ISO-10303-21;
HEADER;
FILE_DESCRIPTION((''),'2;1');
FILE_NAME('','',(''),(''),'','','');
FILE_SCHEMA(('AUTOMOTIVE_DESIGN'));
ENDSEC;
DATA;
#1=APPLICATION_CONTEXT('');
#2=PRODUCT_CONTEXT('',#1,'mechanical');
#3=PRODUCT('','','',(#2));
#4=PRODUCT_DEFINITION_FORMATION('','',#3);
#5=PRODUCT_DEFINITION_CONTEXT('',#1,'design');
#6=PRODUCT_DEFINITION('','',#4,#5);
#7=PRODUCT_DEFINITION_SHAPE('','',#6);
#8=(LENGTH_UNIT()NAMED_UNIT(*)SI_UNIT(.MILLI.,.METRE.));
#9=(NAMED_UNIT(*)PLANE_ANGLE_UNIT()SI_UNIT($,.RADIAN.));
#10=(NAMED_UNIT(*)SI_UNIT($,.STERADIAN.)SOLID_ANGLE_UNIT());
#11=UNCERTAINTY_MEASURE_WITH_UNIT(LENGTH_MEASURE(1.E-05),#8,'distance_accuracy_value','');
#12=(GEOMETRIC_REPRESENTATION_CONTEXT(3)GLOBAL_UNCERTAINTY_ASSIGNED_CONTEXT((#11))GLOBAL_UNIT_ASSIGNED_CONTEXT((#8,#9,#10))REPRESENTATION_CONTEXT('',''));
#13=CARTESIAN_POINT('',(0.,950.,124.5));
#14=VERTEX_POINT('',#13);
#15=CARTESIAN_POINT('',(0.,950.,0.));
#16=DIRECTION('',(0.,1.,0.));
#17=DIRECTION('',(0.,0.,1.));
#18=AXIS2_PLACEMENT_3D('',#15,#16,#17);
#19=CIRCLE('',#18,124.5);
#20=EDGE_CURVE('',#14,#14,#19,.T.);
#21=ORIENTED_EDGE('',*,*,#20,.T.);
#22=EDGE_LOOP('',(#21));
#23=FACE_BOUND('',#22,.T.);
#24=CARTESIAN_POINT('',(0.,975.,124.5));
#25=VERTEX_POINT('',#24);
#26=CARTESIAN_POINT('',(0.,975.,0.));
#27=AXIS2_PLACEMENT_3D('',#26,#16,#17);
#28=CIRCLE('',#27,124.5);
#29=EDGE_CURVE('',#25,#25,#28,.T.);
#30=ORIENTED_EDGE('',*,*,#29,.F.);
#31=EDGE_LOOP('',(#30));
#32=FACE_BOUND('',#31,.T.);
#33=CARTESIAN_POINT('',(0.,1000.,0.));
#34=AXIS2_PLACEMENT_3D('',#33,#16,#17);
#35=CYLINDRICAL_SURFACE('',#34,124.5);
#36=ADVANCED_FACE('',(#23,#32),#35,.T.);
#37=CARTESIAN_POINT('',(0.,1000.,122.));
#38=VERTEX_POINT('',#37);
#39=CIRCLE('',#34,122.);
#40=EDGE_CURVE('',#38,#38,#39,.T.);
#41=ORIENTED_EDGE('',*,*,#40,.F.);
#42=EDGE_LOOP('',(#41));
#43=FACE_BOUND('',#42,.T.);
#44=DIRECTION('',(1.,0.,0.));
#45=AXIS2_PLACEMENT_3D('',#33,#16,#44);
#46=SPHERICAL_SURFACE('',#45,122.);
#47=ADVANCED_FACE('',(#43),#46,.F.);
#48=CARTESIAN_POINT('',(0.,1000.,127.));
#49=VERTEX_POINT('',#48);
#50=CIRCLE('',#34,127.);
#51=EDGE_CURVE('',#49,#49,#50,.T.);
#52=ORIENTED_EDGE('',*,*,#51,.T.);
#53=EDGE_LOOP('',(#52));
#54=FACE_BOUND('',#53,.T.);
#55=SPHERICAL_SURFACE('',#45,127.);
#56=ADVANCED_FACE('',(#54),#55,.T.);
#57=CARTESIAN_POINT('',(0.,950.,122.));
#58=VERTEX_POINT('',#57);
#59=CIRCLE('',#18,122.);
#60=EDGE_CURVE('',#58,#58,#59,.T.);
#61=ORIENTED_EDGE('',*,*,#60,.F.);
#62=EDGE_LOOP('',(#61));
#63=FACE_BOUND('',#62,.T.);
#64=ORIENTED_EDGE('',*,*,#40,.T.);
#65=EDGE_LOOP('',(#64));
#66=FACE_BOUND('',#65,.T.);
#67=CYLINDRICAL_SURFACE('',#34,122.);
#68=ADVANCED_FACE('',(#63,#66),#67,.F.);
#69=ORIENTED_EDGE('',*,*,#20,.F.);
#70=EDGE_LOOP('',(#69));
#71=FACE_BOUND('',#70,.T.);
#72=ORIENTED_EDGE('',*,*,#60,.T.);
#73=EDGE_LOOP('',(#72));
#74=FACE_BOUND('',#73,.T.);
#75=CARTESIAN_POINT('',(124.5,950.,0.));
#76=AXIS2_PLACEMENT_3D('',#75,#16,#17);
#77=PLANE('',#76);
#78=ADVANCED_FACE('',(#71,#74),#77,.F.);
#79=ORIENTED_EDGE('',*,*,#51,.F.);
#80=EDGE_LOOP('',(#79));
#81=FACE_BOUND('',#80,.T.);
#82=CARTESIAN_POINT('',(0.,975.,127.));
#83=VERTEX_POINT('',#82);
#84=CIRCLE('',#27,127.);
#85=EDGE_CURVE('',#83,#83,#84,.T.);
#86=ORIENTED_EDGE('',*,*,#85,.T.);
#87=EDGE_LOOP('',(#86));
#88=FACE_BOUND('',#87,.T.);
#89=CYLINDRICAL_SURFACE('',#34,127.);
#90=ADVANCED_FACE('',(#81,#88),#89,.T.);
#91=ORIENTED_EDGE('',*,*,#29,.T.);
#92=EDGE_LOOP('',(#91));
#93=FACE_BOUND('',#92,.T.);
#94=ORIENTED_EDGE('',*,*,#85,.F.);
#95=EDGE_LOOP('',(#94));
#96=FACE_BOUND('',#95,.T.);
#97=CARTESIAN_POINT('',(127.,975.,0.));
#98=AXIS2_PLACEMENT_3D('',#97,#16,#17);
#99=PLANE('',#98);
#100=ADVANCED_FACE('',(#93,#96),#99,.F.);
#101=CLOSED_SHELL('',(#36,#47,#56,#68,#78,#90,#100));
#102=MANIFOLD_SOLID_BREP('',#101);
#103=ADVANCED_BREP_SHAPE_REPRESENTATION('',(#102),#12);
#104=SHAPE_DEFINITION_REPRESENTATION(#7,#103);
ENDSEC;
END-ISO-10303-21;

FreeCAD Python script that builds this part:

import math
import FreeCAD as App
import Part
import Sketcher
from FreeCAD import Vector
Q = App.Units.Quantity

doc = App.newDocument("Part")
body = doc.addObject("PartDesign::Body", "Body")

sketch1 = body.newObject("Sketcher::SketchObject", "Sketch")
sketch1.AttachmentSupport = (doc.getObject("XY_Plane"), [""])
sketch1.MapMode = "FlatFace"
sketch1.addGeometry(Part.LineSegment(Vector(0, 1127, 0), Vector(0, 1122, 0)), False)
sketch1.addGeometry(Part.ArcOfCircle(Part.Circle(Vector(0, 1000, 0), Vector(0, 0, 1), 122), math.radians(0), math.radians(90)), False)
sketch1.addGeometry(Part.LineSegment(Vector(122, 1000, 0), Vector(122, 950, 0)), False)
sketch1.addGeometry(Part.LineSegment(Vector(122, 950, 0), Vector(124.5, 950, 0)), False)
sketch1.addGeometry(Part.LineSegment(Vector(124.5, 950, 0), Vector(124.5, 975, 0)), False)
sketch1.addGeometry(Part.LineSegment(Vector(124.5, 975, 0), Vector(127, 975, 0)), False)
sketch1.addGeometry(Part.LineSegment(Vector(127, 975, 0), Vector(127, 1000, 0)), False)
sketch1.addGeometry(Part.ArcOfCircle(Part.Circle(Vector(0, 1000, 0), Vector(0, 0, 1), 127), math.radians(0), math.radians(90)), False)
sketch1.addConstraint(Sketcher.Constraint("Coincident", 0, 2, 1, 2))
sketch1.addConstraint(Sketcher.Constraint("Tangent", 1, 1, 2, 1))
sketch1.addConstraint(Sketcher.Constraint("Coincident", 2, 2, 3, 1))
sketch1.addConstraint(Sketcher.Constraint("Coincident", 3, 2, 4, 1))
sketch1.addConstraint(Sketcher.Constraint("Coincident", 4, 2, 5, 1))
sketch1.addConstraint(Sketcher.Constraint("Coincident", 5, 2, 6, 1))
sketch1.addConstraint(Sketcher.Constraint("Tangent", 6, 2, 7, 1))
sketch1.addConstraint(Sketcher.Constraint("Coincident", 7, 2, 0, 1))
sketch1.addConstraint(Sketcher.Constraint("Vertical", 0))
sketch1.addConstraint(Sketcher.Constraint("Vertical", 2))
sketch1.addConstraint(Sketcher.Constraint("Horizontal", 3))
sketch1.addConstraint(Sketcher.Constraint("Vertical", 4))
sketch1.addConstraint(Sketcher.Constraint("Horizontal", 5))
sketch1.addConstraint(Sketcher.Constraint("Vertical", 6))
sketch1.addConstraint(Sketcher.Constraint("Coincident", 7, 3, 1, 3))
sketch1.addConstraint(Sketcher.Constraint("PointOnObject", 1, 3, -2))
sketch1.addConstraint(Sketcher.Constraint("PointOnObject", 0, 2, -2))
sketch1.addConstraint(Sketcher.Constraint("Equal", 3, 5))
sketch1.addConstraint(Sketcher.Constraint("Equal", 4, 6))
sketch1.addConstraint(Sketcher.Constraint("Radius", 1, Q("122 mm")))
sketch1.addConstraint(Sketcher.Constraint("Radius", 7, Q("127 mm")))
sketch1.addConstraint(Sketcher.Constraint("DistanceY", 2, 2, 2, 1, Q("50 mm")))
sketch1.addConstraint(Sketcher.Constraint("DistanceY", -1, 1, 1, 3, Q("1000 mm")))
revolution = body.newObject("PartDesign::Revolution", "Revolution")
revolution.Profile = sketch1
revolution.ReferenceAxis = (sketch1, ["V_Axis"])
revolution.Angle = 360

doc.recompute()
